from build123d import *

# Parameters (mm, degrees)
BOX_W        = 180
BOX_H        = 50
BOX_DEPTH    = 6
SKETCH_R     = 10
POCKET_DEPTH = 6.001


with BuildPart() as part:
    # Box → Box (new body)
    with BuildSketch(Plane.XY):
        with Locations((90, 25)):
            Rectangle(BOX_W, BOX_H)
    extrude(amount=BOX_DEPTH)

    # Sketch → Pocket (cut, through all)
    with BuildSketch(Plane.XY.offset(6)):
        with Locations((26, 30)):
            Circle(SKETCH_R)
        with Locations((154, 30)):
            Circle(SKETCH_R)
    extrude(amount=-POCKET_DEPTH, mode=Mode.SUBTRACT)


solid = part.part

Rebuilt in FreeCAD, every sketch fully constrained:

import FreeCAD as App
import Part
import Sketcher

V = App.Vector
Q = App.Units.Quantity

doc = App.newDocument("Part")
body = doc.addObject("PartDesign::Body", "Body")

sketch1 = body.newObject("Sketcher::SketchObject", "Sketch")
sketch1.AttachmentSupport = (doc.getObject("XY_Plane"), [""])
sketch1.MapMode = "FlatFace"
sketch1.addGeometry([
    Part.LineSegment(V(0, 50, 0), V(0, 0, 0)),
    Part.LineSegment(V(0, 0, 0), V(180, 0, 0)),
    Part.LineSegment(V(180, 0, 0), V(180, 50, 0)),
    Part.LineSegment(V(180, 50, 0), V(0, 50, 0)),
], False)
sketch1.addConstraint([
    Sketcher.Constraint("Coincident", 0, 2, 1, 1),
    Sketcher.Constraint("Coincident", 1, 2, 2, 1),
    Sketcher.Constraint("Coincident", 2, 2, 3, 1),
    Sketcher.Constraint("Coincident", 3, 2, 0, 1),
    Sketcher.Constraint("Vertical", 0),
    Sketcher.Constraint("Horizontal", 1),
    Sketcher.Constraint("Vertical", 2),
    Sketcher.Constraint("Horizontal", 3),
    Sketcher.Constraint("Coincident", 0, 2, -1, 1),
    Sketcher.Constraint("DistanceX", 1, 1, 1, 2, Q("180 mm")),
    Sketcher.Constraint("DistanceY", 0, 2, 0, 1, Q("50 mm")),
])
pad1 = body.newObject("PartDesign::Pad", "Pad")
pad1.Profile = sketch1
pad1.Length = 6

sketch2 = body.newObject("Sketcher::SketchObject", "Sketch001")
sketch2.AttachmentSupport = (doc.getObject("XY_Plane"), [""])
sketch2.MapMode = "FlatFace"
sketch2.AttachmentOffset = App.Placement(V(0, 0, 6), App.Rotation())
sketch2.addGeometry([
    Part.Circle(V(26, 30, 0), V(0, 0, 1), 10),
    Part.Circle(V(154, 30, 0), V(0, 0, 1), 10),
], False)
sketch2.addConstraint([
    Sketcher.Constraint("Equal", 0, 1),
    Sketcher.Constraint("Horizontal", 0, 3, 1, 3),
    Sketcher.Constraint("Diameter", 0, Q("20 mm")),
    Sketcher.Constraint("DistanceX", -1, 1, 0, 3, Q("26 mm")),
    Sketcher.Constraint("DistanceY", -1, 1, 0, 3, Q("30 mm")),
    Sketcher.Constraint("DistanceX", -1, 1, 1, 3, Q("154 mm")),
])
pocket1 = body.newObject("PartDesign::Pocket", "Pocket")
pocket1.Profile = sketch2
pocket1.Type = "ThroughAll"

doc.recompute()
